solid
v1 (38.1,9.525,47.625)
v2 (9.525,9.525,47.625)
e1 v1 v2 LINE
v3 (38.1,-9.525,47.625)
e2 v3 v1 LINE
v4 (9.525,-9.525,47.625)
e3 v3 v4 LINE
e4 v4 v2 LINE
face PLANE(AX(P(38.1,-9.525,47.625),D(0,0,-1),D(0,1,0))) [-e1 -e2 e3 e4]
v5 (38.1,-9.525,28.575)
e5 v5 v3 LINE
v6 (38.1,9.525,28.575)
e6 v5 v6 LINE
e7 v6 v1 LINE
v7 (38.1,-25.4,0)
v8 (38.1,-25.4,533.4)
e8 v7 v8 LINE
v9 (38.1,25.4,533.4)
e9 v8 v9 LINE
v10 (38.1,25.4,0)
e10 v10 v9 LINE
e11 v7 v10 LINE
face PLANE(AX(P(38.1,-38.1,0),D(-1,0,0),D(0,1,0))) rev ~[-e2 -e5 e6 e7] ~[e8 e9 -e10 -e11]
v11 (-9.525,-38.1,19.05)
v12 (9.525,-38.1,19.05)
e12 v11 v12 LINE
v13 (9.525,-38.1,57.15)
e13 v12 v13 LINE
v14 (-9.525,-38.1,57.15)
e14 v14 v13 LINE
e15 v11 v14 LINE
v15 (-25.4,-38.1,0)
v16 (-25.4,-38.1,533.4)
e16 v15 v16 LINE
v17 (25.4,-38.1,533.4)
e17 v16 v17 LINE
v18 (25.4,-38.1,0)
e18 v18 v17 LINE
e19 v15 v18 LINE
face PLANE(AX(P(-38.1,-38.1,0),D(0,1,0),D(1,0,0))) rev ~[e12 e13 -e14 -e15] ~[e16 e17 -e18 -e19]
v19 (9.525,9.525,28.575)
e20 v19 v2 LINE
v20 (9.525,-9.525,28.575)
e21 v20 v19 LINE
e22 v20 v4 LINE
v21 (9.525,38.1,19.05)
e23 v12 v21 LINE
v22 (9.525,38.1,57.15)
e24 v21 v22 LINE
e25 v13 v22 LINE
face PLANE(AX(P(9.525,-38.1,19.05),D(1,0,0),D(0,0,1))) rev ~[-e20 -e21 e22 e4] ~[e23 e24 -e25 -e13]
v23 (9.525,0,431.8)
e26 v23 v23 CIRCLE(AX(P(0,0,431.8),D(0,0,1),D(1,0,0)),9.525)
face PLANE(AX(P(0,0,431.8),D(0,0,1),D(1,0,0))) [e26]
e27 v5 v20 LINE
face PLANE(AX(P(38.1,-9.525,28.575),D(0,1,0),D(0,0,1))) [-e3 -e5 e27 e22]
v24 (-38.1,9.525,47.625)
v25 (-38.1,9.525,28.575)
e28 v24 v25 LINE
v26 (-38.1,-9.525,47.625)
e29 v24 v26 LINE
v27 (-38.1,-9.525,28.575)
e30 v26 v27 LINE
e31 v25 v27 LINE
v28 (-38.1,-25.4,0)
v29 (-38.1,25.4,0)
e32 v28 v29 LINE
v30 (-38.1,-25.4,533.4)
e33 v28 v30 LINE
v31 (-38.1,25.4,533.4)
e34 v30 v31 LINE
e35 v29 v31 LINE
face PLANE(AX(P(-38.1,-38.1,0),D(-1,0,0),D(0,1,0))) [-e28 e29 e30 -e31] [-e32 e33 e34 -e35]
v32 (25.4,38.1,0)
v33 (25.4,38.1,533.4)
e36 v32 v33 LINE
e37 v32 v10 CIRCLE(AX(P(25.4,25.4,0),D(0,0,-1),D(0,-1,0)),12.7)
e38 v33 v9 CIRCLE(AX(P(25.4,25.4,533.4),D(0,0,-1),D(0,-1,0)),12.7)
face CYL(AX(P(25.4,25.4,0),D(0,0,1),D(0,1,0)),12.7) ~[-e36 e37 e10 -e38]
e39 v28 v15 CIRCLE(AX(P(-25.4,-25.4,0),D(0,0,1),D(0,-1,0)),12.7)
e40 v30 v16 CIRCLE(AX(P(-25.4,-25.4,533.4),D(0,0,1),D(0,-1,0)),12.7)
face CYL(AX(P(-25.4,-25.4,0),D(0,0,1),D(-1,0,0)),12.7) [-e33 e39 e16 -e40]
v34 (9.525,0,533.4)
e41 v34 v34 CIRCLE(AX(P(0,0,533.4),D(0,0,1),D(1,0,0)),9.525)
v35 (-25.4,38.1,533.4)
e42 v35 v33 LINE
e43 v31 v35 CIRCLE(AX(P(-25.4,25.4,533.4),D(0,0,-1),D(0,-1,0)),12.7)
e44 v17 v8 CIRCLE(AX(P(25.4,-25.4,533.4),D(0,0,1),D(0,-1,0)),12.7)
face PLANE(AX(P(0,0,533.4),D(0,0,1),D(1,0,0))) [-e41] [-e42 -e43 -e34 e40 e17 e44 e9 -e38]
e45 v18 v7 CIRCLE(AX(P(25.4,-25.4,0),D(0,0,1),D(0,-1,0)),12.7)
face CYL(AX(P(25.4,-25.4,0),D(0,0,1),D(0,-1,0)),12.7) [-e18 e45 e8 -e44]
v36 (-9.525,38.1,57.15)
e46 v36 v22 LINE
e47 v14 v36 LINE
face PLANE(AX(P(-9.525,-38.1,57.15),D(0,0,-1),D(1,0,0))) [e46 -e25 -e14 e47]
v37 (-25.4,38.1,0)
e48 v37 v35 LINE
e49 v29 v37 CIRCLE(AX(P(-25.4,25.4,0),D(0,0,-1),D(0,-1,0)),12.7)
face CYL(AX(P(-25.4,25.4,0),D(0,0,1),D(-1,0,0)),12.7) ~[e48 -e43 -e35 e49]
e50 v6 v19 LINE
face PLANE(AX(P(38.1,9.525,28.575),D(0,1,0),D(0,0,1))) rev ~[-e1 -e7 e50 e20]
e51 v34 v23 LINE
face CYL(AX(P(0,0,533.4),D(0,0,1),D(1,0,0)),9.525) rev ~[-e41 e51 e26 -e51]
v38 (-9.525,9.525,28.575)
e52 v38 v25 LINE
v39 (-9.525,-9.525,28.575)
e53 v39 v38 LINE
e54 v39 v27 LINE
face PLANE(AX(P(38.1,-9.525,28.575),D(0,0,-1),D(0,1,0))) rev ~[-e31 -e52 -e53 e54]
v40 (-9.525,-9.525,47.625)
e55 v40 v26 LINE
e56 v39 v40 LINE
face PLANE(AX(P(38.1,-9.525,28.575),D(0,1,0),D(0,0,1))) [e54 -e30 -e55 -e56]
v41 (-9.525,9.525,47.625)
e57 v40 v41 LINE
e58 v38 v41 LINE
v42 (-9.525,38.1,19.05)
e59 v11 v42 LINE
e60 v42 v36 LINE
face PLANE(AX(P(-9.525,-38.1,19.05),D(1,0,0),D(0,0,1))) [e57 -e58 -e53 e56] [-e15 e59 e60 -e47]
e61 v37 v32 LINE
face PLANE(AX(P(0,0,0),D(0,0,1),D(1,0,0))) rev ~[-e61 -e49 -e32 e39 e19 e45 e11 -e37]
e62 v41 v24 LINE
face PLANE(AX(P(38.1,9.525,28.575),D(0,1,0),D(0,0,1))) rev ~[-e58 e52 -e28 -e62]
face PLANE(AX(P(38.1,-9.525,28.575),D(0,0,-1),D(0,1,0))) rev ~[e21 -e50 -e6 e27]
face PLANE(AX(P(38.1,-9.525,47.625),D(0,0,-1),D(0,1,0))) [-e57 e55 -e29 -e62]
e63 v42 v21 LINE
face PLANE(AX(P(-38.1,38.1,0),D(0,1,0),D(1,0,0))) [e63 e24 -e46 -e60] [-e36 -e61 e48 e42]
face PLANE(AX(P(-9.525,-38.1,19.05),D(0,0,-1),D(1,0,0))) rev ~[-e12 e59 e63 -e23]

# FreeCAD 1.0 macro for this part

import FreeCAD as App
import Part
import Sketcher
Q = App.Units.Quantity


def edges_at(feature, points):
    """Names of the edges that pass closest to the given points."""
    edges = feature.Shape.Edges
    near = lambda p: min(range(len(edges)), key=lambda i: edges[i].distToShape(Part.Vertex(*p))[0])
    return sorted({f"Edge{near(p) + 1}" for p in points})

doc = App.newDocument("Part")
body = doc.addObject("PartDesign::Body", "Body")

# Sketch on XY plane
sketch1 = body.newObject("Sketcher::SketchObject", "Sketch")
sketch1.AttachmentSupport = (doc.getObject("XY_Plane"), [""])
sketch1.MapMode = "FlatFace"
sketch1.addGeometry([
    Part.LineSegment(App.Vector(-38, 38, 0), App.Vector(-38, -38, 0)),
    Part.LineSegment(App.Vector(-38, -38, 0), App.Vector(38, -38, 0)),
    Part.LineSegment(App.Vector(38, -38, 0), App.Vector(38, 38, 0)),
    Part.LineSegment(App.Vector(38, 38, 0), App.Vector(-38, 38, 0)),
], False)
sketch1.addConstraint([
    Sketcher.Constraint("Coincident", 0, 2, 1, 1),
    Sketcher.Constraint("Coincident", 1, 2, 2, 1),
    Sketcher.Constraint("Coincident", 2, 2, 3, 1),
    Sketcher.Constraint("Coincident", 3, 2, 0, 1),
    Sketcher.Constraint("Vertical", 0),
    Sketcher.Constraint("Horizontal", 1),
    Sketcher.Constraint("Vertical", 2),
    Sketcher.Constraint("Horizontal", 3),
    Sketcher.Constraint("Symmetric", 0, 2, 2, 2, -1, 1),
    Sketcher.Constraint("Equal", 3, 0),
    Sketcher.Constraint("DistanceX", 1, 1, 1, 2, Q("3 in")),
])
pad1 = body.newObject("PartDesign::Pad", "Pad")
pad1.Profile = sketch1
pad1.Length = Q("21 in")

# Sketch on XY plane
sketch2 = body.newObject("Sketcher::SketchObject", "Sketch001")
sketch2.AttachmentSupport = (doc.getObject("XY_Plane"), [""])
sketch2.MapMode = "FlatFace"
sketch2.AttachmentOffset = App.Placement(App.Vector(0, 0, 21 * 25.4), App.Rotation())
sketch2.addGeometry(Part.Circle(App.Vector(0, 0, 0), App.Vector(0, 0, 1), 10), False)
sketch2.addConstraint([
    Sketcher.Constraint("Coincident", 0, 3, -1, 1),
    Sketcher.Constraint("Diameter", 0, Q("0.75 in")),
])
pocket1 = body.newObject("PartDesign::Pocket", "Pocket")
pocket1.Profile = sketch2
pocket1.Length = Q("4 in")

# Sketch on XZ plane
sketch3 = body.newObject("Sketcher::SketchObject", "Sketch002")
sketch3.AttachmentSupport = (doc.getObject("XZ_Plane"), [""])
sketch3.MapMode = "FlatFace"
sketch3.AttachmentOffset = App.Placement(App.Vector(0, 0, 1.5 * 25.4), App.Rotation())
sketch3.addGeometry([
    Part.LineSegment(App.Vector(-10, 57, 0), App.Vector(-10, 19, 0)),
    Part.LineSegment(App.Vector(-10, 19, 0), App.Vector(10, 19, 0)),
    Part.LineSegment(App.Vector(10, 19, 0), App.Vector(10, 57, 0)),
    Part.LineSegment(App.Vector(10, 57, 0), App.Vector(-10, 57, 0)),
], False)
sketch3.addConstraint([
    Sketcher.Constraint("Coincident", 0, 2, 1, 1),
    Sketcher.Constraint("Coincident", 1, 2, 2, 1),
    Sketcher.Constraint("Coincident", 2, 2, 3, 1),
    Sketcher.Constraint("Coincident", 3, 2, 0, 1),
    Sketcher.Constraint("Vertical", 0),
    Sketcher.Constraint("Horizontal", 1),
    Sketcher.Constraint("Vertical", 2),
    Sketcher.Constraint("Horizontal", 3),
    Sketcher.Constraint("DistanceY", 0, 2, 0, 1, Q("1.5 in")),
    Sketcher.Constraint("DistanceX", 1, 1, 1, 2, Q("0.75 in")),
    Sketcher.Constraint("DistanceY", -1, 1, 0, 2, Q("0.75 in")),
    Sketcher.Constraint("DistanceX", 0, 2, -1, 1, Q("0.375 in")),
])
pocket2 = body.newObject("PartDesign::Pocket", "Pocket001")
pocket2.Profile = sketch3
pocket2.Type = "ThroughAll"

# Sketch on YZ plane
sketch4 = body.newObject("Sketcher::SketchObject", "Sketch003")
sketch4.AttachmentSupport = (doc.getObject("YZ_Plane"), [""])
sketch4.MapMode = "FlatFace"
sketch4.AttachmentOffset = App.Placement(App.Vector(0, 0, 1.5 * 25.4), App.Rotation())
sketch4.addGeometry([
    Part.LineSegment(App.Vector(-10, 48, 0), App.Vector(-10, 29, 0)),
    Part.LineSegment(App.Vector(-10, 29, 0), App.Vector(10, 29, 0)),
    Part.LineSegment(App.Vector(10, 29, 0), App.Vector(10, 48, 0)),
    Part.LineSegment(App.Vector(10, 48, 0), App.Vector(-10, 48, 0)),
], False)
sketch4.addConstraint([
    Sketcher.Constraint("Coincident", 0, 2, 1, 1),
    Sketcher.Constraint("Coincident", 1, 2, 2, 1),
    Sketcher.Constraint("Coincident", 2, 2, 3, 1),
    Sketcher.Constraint("Coincident", 3, 2, 0, 1),
    Sketcher.Constraint("Vertical", 0),
    Sketcher.Constraint("Horizontal", 1),
    Sketcher.Constraint("Vertical", 2),
    Sketcher.Constraint("Horizontal", 3),
    Sketcher.Constraint("Equal", 3, 0),
    Sketcher.Constraint("DistanceX", 1, 1, 1, 2, Q("0.75 in")),
    Sketcher.Constraint("DistanceX", 0, 2, -1, 1, Q("0.375 in")),
    Sketcher.Constraint("DistanceY", -1, 1, 0, 2, Q("1.125 in")),
])
pocket3 = body.newObject("PartDesign::Pocket", "Pocket002")
pocket3.Profile = sketch4
pocket3.Type = "ThroughAll"
doc.recompute()

fillet = body.newObject("PartDesign::Fillet", "Fillet")
fillet.Base = (pocket3, edges_at(pocket3, [
    (-38.1, -38.1, 266.7),
    (38.1, -38.1, 266.7),
    (38.1, 38.1, 266.7),
    (-38.1, 38.1, 266.7),
]))
fillet.Radius = Q("0.5 in")

doc.recompute()
